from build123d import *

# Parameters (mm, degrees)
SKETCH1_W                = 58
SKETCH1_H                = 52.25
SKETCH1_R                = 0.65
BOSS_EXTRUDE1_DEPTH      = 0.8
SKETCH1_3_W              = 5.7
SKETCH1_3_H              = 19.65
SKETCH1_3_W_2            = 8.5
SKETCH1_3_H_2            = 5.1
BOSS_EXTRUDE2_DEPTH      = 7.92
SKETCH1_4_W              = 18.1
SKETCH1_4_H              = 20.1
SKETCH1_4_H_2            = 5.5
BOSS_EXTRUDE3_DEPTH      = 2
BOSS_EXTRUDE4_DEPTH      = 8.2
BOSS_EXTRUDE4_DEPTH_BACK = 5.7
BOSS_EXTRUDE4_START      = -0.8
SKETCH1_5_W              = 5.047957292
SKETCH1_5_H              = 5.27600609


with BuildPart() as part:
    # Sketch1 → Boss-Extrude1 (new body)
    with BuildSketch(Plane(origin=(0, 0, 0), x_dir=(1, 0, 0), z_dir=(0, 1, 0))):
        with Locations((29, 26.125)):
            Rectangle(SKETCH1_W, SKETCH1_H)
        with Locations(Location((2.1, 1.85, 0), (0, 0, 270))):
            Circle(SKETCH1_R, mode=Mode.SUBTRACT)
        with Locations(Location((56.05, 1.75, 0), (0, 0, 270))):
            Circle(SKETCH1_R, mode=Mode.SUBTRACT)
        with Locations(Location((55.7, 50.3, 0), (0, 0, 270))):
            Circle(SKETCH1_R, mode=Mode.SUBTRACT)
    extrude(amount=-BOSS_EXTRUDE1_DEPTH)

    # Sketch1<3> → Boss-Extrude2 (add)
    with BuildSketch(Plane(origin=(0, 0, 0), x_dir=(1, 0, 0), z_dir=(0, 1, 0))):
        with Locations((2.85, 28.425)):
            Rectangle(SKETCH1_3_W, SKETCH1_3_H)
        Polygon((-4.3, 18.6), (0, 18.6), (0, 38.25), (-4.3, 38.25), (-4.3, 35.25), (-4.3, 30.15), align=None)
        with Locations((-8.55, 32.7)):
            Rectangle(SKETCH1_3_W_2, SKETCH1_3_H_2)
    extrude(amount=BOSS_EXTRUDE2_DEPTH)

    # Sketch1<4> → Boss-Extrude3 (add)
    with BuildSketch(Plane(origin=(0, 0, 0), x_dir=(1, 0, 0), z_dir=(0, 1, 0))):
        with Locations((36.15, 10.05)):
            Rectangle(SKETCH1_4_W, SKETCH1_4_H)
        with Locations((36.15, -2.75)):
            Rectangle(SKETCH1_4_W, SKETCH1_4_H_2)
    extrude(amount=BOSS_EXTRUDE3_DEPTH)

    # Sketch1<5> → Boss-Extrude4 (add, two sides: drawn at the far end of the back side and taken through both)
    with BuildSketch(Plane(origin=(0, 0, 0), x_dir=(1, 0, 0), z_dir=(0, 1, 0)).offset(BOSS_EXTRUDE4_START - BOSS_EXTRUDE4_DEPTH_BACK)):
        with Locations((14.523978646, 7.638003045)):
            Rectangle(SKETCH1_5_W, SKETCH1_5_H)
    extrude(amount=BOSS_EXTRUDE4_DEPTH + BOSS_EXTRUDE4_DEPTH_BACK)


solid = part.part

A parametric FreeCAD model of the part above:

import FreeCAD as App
import Part
import Sketcher
from FreeCAD import Vector


def add_polygon(sketch, points):
    """Adds a closed chain of lines whose ends are joined by coincident constraints."""
    first, n = sketch.GeometryCount, len(points)
    for a, b in zip(points, points[1:] + points[:1]):
        sketch.addGeometry(Part.LineSegment(App.Vector(*a, 0), App.Vector(*b, 0)), False)
    for i in range(n):
        sketch.addConstraint(Sketcher.Constraint("Coincident", first + i, 2, first + (i + 1) % n, 1))

doc = App.newDocument("Part")
body = doc.addObject("PartDesign::Body", "Body")

sketch1 = body.newObject("Sketcher::SketchObject", "Sketch")
sketch1.AttachmentSupport = (doc.getObject("XZ_Plane"), [""])
sketch1.MapMode = "FlatFace"
add_polygon(sketch1, [(0, -52.2), (0, 0), (58, 0), (58, -52.2)])
sketch1.addGeometry(Part.Circle(Vector(2.1, -1.9, 0), Vector(0, 0, 1), 0.7), False)
sketch1.addGeometry(Part.Circle(Vector(56, -1.8, 0), Vector(0, 0, 1), 0.7), False)
sketch1.addGeometry(Part.Circle(Vector(55.7, -50.3, 0), Vector(0, 0, 1), 0.7), False)
sketch1.addConstraint([
    Sketcher.Constraint("Vertical", 0),
    Sketcher.Constraint("Horizontal", 1),
    Sketcher.Constraint("Vertical", 2),
    Sketcher.Constraint("Horizontal", 3),
    Sketcher.Constraint("Coincident", 0, 2, -1, 1),
    Sketcher.Constraint("Equal", 4, 5),
    Sketcher.Constraint("Equal", 5, 6),
    Sketcher.Constraint("Diameter", 4, 1.3),
    Sketcher.Constraint("DistanceX", 1, 1, 1, 2, 58.0),
    Sketcher.Constraint("DistanceY", 0, 1, 0, 2, 52.25),
    Sketcher.Constraint("DistanceX", -1, 1, 4, 3, 2.1),
    Sketcher.Constraint("DistanceX", -1, 1, 6, 3, 55.7),
    Sketcher.Constraint("DistanceY", 6, 3, -1, 1, 50.3),
    Sketcher.Constraint("DistanceY", 4, 3, 5, 3, 0.1),
    Sketcher.Constraint("DistanceY", 2, 2, 5, 3, 50.5),
    Sketcher.Constraint("DistanceX", -1, 1, 5, 3, 56.05),
])
pad1 = body.newObject("PartDesign::Pad", "Pad")
pad1.Profile = sketch1
pad1.Length = 0.8

sketch2 = body.newObject("Sketcher::SketchObject", "Sketch001")
sketch2.AttachmentSupport = (doc.getObject("XZ_Plane"), [""])
sketch2.MapMode = "FlatFace"
add_polygon(sketch2, [(5.7, -18.6), (5.7, -38.2), (-4.3, -38.2), (-4.3, -35.2), (-12.8, -35.2), (-12.8, -30.1), (-4.3, -30.1), (-4.3, -18.6)])
sketch2.addConstraint([
    Sketcher.Constraint("Vertical", 0),
    Sketcher.Constraint("Horizontal", 1),
    Sketcher.Constraint("Vertical", 2),
    Sketcher.Constraint("Horizontal", 3),
    Sketcher.Constraint("Vertical", 4),
    Sketcher.Constraint("Horizontal", 5),
    Sketcher.Constraint("Vertical", 6),
    Sketcher.Constraint("Horizontal", 7),
    Sketcher.Constraint("Vertical", 2, 2, 5, 2),
    Sketcher.Constraint("DistanceX", 1, 2, 1, 1, 10.0),
    Sketcher.Constraint("DistanceY", 2, 1, 2, 2, 3.0),
    Sketcher.Constraint("DistanceX", 3, 2, 3, 1, 8.5),
    Sketcher.Constraint("DistanceY", 4, 1, 4, 2, 5.1),
    Sketcher.Constraint("DistanceY", 0, 2, 0, 1, 19.65),
    Sketcher.Constraint("DistanceX", -1, 1, 0, 2, 5.7),
    Sketcher.Constraint("DistanceY", 6, 2, -1, 1, 18.6),
])
pad2 = body.newObject("PartDesign::Pad", "Pad001")
pad2.Profile = sketch2
pad2.Length = 7.92
pad2.Reversed = True

sketch3 = body.newObject("Sketcher::SketchObject", "Sketch002")
sketch3.AttachmentSupport = (doc.getObject("XZ_Plane"), [""])
sketch3.MapMode = "FlatFace"
add_polygon(sketch3, [(27, -20), (27, 6), (45, 6), (45, -20)])
sketch3.addConstraint([
    Sketcher.Constraint("Vertical", 0),
    Sketcher.Constraint("Horizontal", 1),
    Sketcher.Constraint("Vertical", 2),
    Sketcher.Constraint("Horizontal", 3),
    Sketcher.Constraint("DistanceX", 1, 1, 1, 2, 18.1),
    Sketcher.Constraint("DistanceY", 0, 1, 0, 2, 25.6),
    Sketcher.Constraint("DistanceX", -1, 1, 0, 2, 27.1),
    Sketcher.Constraint("DistanceY", -1, 1, 0, 2, 5.5),
])
pad3 = body.newObject("PartDesign::Pad", "Pad002")
pad3.Profile = sketch3
pad3.Length = 2
pad3.Reversed = True

sketch4 = body.newObject("Sketcher::SketchObject", "Sketch003")
sketch4.AttachmentSupport = (doc.getObject("XZ_Plane"), [""])
sketch4.MapMode = "FlatFace"
sketch4.AttachmentOffset = App.Placement(Vector(0, 0, 0.8), App.Rotation())
add_polygon(sketch4, [(12, -10), (12, -5), (17, -5), (17, -10)])
sketch4.addConstraint([
    Sketcher.Constraint("Vertical", 0),
    Sketcher.Constraint("Horizontal", 1),
    Sketcher.Constraint("Vertical", 2),
    Sketcher.Constraint("Horizontal", 3),
    Sketcher.Constraint("DistanceX", -1, 1, 0, 2, 12.0),
    Sketcher.Constraint("DistanceY", 0, 2, -1, 1, 5.0),
    Sketcher.Constraint("DistanceX", 1, 1, 1, 2, 5.047957),
    Sketcher.Constraint("DistanceY", 0, 1, 0, 2, 5.276006),
])
pad4 = body.newObject("PartDesign::Pad", "Pad003")
pad4.Profile = sketch4
pad4.Type = "TwoLengths"
pad4.Length = 8.2
pad4.Length2 = 5.7
pad4.Reversed = True

doc.recompute()
